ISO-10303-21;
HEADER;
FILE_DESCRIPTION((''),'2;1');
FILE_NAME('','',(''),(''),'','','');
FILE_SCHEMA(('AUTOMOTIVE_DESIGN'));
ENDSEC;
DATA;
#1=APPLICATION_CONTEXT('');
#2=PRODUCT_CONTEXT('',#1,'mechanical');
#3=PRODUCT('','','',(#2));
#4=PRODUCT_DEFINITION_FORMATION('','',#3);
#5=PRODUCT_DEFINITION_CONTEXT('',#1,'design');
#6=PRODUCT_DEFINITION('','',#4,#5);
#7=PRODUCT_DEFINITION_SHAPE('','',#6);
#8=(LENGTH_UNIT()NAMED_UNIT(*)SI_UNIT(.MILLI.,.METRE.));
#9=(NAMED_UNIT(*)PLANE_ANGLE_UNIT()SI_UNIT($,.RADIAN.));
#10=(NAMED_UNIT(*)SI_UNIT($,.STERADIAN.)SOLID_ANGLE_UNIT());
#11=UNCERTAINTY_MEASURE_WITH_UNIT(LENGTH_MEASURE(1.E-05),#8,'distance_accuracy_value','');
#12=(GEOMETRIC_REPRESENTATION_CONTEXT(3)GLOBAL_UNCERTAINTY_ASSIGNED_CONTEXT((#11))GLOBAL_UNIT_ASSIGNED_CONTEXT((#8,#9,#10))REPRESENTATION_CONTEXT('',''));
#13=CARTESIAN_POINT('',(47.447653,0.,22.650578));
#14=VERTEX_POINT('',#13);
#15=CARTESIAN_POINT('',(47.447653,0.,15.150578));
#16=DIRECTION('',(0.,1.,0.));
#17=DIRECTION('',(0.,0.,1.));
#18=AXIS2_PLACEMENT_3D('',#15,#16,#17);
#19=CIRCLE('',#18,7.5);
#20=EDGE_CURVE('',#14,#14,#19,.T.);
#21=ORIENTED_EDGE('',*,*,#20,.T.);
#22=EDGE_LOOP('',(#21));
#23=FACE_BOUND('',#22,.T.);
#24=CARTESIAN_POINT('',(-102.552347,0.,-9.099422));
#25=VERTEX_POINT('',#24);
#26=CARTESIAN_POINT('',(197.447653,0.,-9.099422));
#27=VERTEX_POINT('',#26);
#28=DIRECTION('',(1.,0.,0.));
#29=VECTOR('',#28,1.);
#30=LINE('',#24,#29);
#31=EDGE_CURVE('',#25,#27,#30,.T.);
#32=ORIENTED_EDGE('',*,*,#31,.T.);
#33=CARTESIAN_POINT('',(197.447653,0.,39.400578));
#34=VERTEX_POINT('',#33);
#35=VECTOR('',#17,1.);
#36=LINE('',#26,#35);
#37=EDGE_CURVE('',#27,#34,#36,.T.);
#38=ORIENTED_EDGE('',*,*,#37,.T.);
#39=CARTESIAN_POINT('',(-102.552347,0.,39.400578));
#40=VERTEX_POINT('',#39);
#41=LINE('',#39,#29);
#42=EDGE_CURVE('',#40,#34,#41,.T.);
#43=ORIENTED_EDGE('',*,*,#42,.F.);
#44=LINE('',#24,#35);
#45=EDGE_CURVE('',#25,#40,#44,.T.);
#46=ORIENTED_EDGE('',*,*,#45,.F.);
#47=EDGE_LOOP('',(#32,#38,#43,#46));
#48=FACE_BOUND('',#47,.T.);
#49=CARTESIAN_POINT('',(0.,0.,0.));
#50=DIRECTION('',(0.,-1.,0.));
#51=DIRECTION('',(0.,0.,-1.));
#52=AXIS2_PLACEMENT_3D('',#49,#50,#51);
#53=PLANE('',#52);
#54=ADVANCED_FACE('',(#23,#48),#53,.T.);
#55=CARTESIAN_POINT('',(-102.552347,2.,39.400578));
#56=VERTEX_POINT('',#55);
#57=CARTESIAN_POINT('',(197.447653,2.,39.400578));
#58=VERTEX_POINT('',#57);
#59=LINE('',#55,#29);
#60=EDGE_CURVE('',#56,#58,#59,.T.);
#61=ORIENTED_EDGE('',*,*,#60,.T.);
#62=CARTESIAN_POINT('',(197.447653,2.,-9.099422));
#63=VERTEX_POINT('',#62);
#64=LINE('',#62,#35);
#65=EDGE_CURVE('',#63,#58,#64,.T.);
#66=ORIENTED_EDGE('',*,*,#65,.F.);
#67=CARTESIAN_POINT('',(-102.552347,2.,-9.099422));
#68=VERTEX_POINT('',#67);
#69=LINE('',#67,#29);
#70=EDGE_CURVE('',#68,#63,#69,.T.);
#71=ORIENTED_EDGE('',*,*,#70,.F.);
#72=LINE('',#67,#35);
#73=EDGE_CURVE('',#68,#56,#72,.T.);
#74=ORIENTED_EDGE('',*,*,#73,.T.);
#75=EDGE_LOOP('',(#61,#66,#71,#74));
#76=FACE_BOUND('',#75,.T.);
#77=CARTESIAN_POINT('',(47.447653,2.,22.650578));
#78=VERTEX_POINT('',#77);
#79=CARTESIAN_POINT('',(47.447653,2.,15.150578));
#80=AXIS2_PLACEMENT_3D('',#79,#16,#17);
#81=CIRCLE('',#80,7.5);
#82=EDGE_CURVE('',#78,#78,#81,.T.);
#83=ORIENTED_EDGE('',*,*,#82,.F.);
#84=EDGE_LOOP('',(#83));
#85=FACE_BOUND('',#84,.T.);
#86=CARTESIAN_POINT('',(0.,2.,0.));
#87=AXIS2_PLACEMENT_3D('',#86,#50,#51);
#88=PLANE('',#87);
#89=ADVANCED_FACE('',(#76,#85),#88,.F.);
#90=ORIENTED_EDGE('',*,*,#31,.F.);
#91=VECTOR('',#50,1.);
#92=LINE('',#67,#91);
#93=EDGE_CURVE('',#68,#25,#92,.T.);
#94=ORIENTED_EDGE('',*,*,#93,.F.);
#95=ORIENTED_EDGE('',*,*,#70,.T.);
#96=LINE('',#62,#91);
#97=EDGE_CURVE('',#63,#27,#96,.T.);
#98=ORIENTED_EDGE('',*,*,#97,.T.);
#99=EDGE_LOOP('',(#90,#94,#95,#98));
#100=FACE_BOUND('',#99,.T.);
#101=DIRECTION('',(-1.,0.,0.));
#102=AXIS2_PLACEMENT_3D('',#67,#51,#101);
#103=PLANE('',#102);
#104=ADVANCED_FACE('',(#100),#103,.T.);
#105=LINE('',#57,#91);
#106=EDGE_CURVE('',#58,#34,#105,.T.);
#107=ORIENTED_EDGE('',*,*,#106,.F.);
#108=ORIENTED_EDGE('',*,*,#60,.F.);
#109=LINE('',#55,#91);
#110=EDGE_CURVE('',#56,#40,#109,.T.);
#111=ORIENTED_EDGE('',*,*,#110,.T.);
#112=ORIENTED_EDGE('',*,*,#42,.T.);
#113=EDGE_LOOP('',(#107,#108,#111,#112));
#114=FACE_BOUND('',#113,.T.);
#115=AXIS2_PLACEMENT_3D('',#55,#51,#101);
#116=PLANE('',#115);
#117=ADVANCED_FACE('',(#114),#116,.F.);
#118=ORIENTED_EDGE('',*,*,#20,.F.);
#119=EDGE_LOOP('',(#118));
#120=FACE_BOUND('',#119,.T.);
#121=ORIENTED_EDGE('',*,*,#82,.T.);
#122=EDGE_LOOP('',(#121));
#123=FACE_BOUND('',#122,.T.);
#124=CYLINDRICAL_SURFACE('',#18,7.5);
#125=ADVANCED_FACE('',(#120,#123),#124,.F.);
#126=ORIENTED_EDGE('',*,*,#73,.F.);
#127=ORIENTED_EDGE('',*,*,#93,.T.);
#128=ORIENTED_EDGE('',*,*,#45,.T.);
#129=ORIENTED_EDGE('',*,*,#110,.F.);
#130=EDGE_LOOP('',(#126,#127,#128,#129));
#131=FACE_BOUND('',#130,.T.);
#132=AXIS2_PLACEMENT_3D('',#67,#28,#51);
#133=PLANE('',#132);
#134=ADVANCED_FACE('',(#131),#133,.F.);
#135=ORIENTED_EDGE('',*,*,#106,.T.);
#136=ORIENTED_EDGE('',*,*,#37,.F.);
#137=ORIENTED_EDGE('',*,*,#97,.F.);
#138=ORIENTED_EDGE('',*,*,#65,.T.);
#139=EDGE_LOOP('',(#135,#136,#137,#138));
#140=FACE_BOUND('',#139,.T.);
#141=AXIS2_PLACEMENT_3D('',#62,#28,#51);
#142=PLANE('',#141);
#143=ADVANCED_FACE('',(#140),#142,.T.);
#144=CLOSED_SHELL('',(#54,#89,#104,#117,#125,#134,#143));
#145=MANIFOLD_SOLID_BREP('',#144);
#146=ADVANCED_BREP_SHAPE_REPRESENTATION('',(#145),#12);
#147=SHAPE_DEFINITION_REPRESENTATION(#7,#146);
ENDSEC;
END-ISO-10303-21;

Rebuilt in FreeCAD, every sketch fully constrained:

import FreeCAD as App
import Part
import Sketcher

V = App.Vector


def add_polygon(sketch, points):
    """Adds a closed chain of lines whose ends are joined by coincident constraints."""
    first, n = sketch.GeometryCount, len(points)
    for a, b in zip(points, points[1:] + points[:1]):
        sketch.addGeometry(Part.LineSegment(App.Vector(*a, 0), App.Vector(*b, 0)), False)
    for i in range(n):
        sketch.addConstraint(Sketcher.Constraint("Coincident", first + i, 2, first + (i + 1) % n, 1))

doc = App.newDocument("Part")
params = doc.addObject("Spreadsheet::Sheet", "Params")
for row, (alias, value) in enumerate([
    ("sketch1_width", "300 mm"),
    ("sketch1_height", "48.5 mm"),
    ("pad1_length", "2 mm"),
    ("sketch2_diameter", "15 mm"),
    ("pocket1_length", "2 mm"),
], start=1):
    params.set(f"A{row}", alias)
    params.set(f"B{row}", "=" + value)
    params.setAlias(f"B{row}", alias)

body = doc.addObject("PartDesign::Body", "Body")

# Sketch on XZ plane
sketch1 = doc.addObject("Sketcher::SketchObject", "Sketch")
body.addObject(sketch1)
sketch1.AttachmentSupport = (doc.XZ_Plane, [""])
sketch1.MapMode = "FlatFace"
add_polygon(sketch1, [(-103, -9), (-103, 39), (197, 39), (197, -9)])  # lines 0-3
sketch1.addConstraint([
    Sketcher.Constraint("Vertical", 0),
    Sketcher.Constraint("Horizontal", 1),
    Sketcher.Constraint("Vertical", 2),
    Sketcher.Constraint("Horizontal", 3),
    Sketcher.Constraint("DistanceX", 1, 1, 1, 2, 300.0),
    Sketcher.Constraint("DistanceY", 0, 1, 0, 2, 48.5),
    Sketcher.Constraint("DistanceY", -1, 1, 0, 2, 39.400578),
    Sketcher.Constraint("DistanceX", 0, 2, -1, 1, 102.552347),
])
sketch1.setExpression("Constraints[8]", "Params.sketch1_width")
sketch1.setExpression("Constraints[9]", "Params.sketch1_height")
pad1 = doc.addObject("PartDesign::Pad", "Pad")
body.addObject(pad1)
pad1.Profile = sketch1
pad1.setExpression("Length", "Params.pad1_length")
pad1.Reversed = True

# Sketch on XZ plane
sketch2 = doc.addObject("Sketcher::SketchObject", "Sketch001")
body.addObject(sketch2)
sketch2.AttachmentSupport = (doc.XZ_Plane, [""])
sketch2.MapMode = "FlatFace"
sketch2.AttachmentOffset = App.Placement(V(0, 0, -2), App.Rotation())
sketch2.addGeometry(Part.Circle(V(47, 15, 0), V(0, 0, 1), 8), False)
sketch2.addConstraint([
    Sketcher.Constraint("Diameter", 0, 15.0),
    Sketcher.Constraint("DistanceY", -1, 1, 0, 3, 15.150578),
    Sketcher.Constraint("DistanceX", -1, 1, 0, 3, 47.447653),
])
sketch2.setExpression("Constraints[0]", "Params.sketch2_diameter")
pocket1 = doc.addObject("PartDesign::Pocket", "Pocket")
body.addObject(pocket1)
pocket1.Profile = sketch2
pocket1.setExpression("Length", "Params.pocket1_length")
pocket1.Reversed = True

doc.recompute()
